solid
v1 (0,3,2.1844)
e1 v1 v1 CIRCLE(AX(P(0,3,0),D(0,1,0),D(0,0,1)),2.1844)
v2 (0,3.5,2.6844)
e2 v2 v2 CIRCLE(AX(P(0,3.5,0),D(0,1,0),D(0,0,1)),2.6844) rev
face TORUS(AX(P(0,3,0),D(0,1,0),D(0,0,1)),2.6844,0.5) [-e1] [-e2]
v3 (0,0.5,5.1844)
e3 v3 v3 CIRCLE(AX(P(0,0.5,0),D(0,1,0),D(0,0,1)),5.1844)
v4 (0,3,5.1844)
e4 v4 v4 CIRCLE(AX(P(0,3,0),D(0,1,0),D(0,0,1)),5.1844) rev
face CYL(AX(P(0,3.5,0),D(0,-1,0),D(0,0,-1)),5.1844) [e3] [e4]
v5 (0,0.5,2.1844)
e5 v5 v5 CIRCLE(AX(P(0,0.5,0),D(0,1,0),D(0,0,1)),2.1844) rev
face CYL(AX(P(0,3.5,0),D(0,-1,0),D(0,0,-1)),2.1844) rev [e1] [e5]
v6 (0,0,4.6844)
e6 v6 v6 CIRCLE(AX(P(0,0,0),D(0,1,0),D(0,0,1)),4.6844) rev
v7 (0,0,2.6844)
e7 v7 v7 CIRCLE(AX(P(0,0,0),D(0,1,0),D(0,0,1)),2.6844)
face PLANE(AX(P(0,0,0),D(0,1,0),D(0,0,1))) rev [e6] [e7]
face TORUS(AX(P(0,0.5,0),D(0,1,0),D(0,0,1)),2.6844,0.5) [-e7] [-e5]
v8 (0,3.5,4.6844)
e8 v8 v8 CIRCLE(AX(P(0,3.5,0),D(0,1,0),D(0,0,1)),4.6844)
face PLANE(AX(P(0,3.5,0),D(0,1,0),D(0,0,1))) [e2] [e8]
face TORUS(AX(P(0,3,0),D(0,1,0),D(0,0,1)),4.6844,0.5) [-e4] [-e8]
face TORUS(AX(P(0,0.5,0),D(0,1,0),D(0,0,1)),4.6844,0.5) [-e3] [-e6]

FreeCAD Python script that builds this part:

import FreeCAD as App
import Part
import Sketcher
from FreeCAD import Vector
Q = App.Units.Quantity


def edges_at(feature, points):
    """Names of the edges that pass closest to the given points."""
    edges = feature.Shape.Edges
    near = lambda p: min(range(len(edges)), key=lambda i: edges[i].distToShape(Part.Vertex(*p))[0])
    return sorted({f"Edge{near(p) + 1}" for p in points})

doc = App.newDocument("Part")
body = doc.addObject("PartDesign::Body", "Body")

# Sketch on XZ plane
sketch1 = body.newObject("Sketcher::SketchObject", "Sketch")
sketch1.AttachmentSupport = (doc.getObject("XZ_Plane"), [""])
sketch1.MapMode = "FlatFace"
sketch1.addGeometry([
    Part.Circle(Vector(0, 0, 0), Vector(0, 0, 1), 5.2),
    Part.Circle(Vector(0, 0, 0), Vector(0, 0, 1), 2.2),
], False)
sketch1.addConstraint([
    Sketcher.Constraint("Coincident", 0, 3, -1, 1),
    Sketcher.Constraint("Coincident", 1, 3, -1, 1),
    Sketcher.Constraint("Diameter", 0, Q("10.3688 mm")),
    Sketcher.Constraint("Diameter", 1, Q("4.3688 mm")),
])
pad1 = body.newObject("PartDesign::Pad", "Pad")
pad1.Profile = sketch1
pad1.Length = 3.5
pad1.Reversed = True
doc.recompute()

fillet = body.newObject("PartDesign::Fillet", "Fillet")
fillet.Base = (pad1, edges_at(pad1, [
    (-5.184, 0, 0),
    (-5.184, 3.5, 0),
    (-2.184, 0, 0),
    (-2.184, 3.5, 0),
]))
fillet.Radius = 0.5

doc.recompute()
